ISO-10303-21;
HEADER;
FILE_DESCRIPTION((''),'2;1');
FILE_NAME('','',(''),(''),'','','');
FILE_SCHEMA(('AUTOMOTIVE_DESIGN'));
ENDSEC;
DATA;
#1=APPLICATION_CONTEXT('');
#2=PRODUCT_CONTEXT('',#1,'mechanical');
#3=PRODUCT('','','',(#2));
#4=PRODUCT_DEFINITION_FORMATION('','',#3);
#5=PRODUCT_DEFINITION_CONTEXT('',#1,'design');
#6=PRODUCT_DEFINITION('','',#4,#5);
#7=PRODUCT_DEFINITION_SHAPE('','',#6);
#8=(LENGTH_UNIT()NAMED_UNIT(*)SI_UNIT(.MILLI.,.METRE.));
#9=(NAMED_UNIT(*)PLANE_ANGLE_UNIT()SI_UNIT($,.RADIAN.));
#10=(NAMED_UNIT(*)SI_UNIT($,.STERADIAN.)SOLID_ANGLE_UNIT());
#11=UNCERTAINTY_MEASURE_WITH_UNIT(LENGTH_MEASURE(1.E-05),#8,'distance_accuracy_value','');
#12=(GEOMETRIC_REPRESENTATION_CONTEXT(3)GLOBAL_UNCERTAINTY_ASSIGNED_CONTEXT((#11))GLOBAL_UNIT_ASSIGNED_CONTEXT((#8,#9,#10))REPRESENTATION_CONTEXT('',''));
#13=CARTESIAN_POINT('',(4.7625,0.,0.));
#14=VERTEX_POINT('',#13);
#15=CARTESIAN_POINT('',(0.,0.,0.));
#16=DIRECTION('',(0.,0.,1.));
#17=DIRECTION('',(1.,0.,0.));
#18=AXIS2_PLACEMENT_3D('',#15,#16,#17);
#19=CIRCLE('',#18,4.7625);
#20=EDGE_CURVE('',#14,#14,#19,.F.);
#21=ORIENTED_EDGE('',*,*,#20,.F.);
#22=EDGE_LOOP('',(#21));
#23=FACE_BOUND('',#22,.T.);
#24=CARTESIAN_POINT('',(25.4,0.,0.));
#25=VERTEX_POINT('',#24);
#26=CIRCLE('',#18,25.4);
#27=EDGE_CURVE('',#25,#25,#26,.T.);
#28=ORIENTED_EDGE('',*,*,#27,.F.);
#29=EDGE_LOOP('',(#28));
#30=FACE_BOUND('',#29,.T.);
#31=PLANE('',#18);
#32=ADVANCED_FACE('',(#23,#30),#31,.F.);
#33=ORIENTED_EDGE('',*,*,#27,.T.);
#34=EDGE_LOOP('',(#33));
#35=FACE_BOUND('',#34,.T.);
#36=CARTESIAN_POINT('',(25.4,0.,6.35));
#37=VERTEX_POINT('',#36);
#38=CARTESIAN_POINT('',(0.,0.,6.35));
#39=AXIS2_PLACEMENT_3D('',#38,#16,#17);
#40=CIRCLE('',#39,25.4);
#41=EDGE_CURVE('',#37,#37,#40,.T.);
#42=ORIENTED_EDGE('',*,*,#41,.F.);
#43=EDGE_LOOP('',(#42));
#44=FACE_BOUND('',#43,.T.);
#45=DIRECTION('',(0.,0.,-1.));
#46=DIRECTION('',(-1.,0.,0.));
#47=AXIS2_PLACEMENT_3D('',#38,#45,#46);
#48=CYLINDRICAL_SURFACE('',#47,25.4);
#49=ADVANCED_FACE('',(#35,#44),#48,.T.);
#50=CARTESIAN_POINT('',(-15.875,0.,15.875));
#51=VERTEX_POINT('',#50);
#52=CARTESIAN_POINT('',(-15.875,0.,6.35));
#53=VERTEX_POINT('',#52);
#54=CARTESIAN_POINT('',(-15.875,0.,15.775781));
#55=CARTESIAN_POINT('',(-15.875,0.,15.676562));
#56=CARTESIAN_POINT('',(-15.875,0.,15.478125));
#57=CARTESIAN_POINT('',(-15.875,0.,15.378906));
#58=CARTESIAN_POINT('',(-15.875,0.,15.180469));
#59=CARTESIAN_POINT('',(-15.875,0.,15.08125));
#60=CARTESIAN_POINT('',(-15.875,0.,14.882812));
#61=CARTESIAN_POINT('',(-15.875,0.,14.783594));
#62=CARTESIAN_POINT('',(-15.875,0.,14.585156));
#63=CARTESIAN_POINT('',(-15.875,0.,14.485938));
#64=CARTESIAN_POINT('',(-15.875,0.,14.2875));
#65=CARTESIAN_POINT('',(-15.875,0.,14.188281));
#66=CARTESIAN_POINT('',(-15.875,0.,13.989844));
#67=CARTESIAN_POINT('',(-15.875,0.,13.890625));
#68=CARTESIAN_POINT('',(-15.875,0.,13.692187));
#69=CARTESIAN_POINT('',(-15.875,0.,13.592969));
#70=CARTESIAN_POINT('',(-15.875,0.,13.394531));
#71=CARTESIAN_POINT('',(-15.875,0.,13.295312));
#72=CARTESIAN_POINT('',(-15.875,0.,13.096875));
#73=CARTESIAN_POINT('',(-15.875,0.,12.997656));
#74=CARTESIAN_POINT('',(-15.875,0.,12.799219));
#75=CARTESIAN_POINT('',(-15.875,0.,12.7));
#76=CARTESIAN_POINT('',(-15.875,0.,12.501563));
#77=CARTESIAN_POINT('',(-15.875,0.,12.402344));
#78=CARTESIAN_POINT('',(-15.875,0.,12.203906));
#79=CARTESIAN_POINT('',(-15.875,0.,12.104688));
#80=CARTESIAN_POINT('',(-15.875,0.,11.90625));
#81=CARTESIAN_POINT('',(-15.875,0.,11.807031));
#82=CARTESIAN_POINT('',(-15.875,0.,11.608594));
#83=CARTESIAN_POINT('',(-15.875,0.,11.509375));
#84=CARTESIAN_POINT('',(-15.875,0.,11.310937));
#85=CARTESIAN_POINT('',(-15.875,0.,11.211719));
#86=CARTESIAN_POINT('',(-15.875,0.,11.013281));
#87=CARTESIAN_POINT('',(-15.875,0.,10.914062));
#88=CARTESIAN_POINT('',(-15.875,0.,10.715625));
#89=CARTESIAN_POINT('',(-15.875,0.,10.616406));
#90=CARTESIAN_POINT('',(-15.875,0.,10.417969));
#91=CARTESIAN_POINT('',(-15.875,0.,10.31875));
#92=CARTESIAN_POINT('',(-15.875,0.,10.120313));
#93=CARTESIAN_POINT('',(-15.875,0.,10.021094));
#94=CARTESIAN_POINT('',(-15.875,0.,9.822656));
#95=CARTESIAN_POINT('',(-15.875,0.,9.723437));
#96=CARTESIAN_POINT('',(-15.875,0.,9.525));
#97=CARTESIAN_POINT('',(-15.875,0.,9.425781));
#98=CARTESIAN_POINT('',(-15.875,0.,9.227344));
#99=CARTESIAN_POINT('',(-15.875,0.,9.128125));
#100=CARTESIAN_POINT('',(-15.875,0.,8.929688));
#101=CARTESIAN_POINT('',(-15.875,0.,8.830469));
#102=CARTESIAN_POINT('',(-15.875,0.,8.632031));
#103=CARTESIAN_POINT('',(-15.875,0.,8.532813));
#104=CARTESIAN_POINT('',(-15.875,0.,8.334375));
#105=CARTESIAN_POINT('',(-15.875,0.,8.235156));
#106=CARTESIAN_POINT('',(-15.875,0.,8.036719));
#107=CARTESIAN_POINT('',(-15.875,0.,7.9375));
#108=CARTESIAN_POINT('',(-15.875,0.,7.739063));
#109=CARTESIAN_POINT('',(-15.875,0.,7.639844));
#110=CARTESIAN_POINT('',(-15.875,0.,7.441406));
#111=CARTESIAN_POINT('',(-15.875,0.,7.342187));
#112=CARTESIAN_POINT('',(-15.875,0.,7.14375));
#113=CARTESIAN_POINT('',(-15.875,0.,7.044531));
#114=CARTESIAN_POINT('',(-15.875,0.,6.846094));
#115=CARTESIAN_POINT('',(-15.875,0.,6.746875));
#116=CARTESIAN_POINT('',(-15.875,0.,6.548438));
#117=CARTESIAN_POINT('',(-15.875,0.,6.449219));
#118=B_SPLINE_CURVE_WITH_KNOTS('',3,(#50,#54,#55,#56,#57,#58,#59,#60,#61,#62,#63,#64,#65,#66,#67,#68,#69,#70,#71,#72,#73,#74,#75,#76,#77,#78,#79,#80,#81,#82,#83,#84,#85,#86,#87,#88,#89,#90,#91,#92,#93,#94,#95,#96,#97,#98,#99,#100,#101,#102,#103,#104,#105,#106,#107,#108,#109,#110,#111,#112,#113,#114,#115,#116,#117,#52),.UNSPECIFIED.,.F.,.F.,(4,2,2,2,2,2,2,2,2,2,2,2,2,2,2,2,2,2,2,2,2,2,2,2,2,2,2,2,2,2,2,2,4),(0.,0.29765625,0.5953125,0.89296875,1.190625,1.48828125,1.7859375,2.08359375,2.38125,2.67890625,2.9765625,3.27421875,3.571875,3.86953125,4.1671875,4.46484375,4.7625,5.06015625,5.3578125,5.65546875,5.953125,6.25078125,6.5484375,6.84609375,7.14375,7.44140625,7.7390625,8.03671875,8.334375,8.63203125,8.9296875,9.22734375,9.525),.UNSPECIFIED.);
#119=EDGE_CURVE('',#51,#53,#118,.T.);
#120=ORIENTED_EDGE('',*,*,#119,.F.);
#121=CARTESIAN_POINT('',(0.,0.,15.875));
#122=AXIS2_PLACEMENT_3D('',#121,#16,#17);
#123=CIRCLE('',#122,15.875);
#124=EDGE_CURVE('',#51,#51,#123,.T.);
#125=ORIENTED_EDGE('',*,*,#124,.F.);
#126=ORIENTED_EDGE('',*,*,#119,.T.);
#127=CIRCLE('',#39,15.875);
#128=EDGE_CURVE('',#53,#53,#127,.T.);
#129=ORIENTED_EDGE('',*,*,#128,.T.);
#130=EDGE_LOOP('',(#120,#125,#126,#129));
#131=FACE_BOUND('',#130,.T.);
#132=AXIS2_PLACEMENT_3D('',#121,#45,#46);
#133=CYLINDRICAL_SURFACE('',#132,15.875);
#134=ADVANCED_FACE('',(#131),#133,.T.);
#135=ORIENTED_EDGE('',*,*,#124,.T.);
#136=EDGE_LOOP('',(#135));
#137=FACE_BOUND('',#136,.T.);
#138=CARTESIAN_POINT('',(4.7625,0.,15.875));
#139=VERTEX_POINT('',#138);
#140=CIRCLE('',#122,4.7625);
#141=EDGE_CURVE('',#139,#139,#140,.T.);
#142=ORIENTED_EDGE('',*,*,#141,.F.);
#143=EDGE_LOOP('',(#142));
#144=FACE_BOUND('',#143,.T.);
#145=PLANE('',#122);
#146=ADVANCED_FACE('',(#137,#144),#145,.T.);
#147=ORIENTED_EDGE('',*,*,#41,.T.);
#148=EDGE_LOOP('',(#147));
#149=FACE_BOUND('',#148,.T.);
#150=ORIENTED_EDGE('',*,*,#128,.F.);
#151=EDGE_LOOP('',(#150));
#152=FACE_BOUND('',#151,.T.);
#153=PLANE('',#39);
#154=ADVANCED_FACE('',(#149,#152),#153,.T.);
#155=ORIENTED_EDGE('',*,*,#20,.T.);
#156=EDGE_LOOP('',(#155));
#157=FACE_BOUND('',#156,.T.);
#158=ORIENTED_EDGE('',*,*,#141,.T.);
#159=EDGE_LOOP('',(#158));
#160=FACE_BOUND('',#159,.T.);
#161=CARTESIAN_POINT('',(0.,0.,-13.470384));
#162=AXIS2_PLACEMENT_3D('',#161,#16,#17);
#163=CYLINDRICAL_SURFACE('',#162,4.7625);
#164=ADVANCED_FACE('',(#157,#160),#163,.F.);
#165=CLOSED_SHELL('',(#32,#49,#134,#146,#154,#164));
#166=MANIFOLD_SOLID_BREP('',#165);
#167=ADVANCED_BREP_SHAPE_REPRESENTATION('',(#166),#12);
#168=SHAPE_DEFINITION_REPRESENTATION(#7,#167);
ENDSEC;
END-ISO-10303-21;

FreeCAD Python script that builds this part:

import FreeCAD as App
import Part
import Sketcher

V = App.Vector
Q = App.Units.Quantity

doc = App.newDocument("Part")
body = doc.addObject("PartDesign::Body", "Body")

# Sketch on XY plane
sketch1 = body.newObject("Sketcher::SketchObject", "Sketch")
sketch1.AttachmentSupport = (doc.getObject("XY_Plane"), [""])
sketch1.MapMode = "FlatFace"
sketch1.addGeometry(Part.Circle(V(0, 0, 0), V(0, 0, 1), 25), False)
sketch1.addConstraint([
    Sketcher.Constraint("Coincident", 0, 3, -1, 1),
    Sketcher.Constraint("Diameter", 0, Q("2 in")),
])
pad1 = body.newObject("PartDesign::Pad", "Pad")
pad1.Profile = sketch1
pad1.Length = Q("0.25 in")

# Sketch on XY plane
sketch2 = body.newObject("Sketcher::SketchObject", "Sketch001")
sketch2.AttachmentSupport = (doc.getObject("XY_Plane"), [""])
sketch2.MapMode = "FlatFace"
sketch2.AttachmentOffset = App.Placement(V(0, 0, 0.25 * 25.4), App.Rotation())
sketch2.addGeometry(Part.Circle(V(0, 0, 0), V(0, 0, 1), 16), False)
sketch2.addConstraint([
    Sketcher.Constraint("Coincident", 0, 3, -1, 1),
    Sketcher.Constraint("Diameter", 0, Q("1.25 in")),
])
pad2 = body.newObject("PartDesign::Pad", "Pad001")
pad2.Profile = sketch2
pad2.Length = Q("0.375 in")

# Sketch on XY plane
sketch3 = body.newObject("Sketcher::SketchObject", "Sketch002")
sketch3.AttachmentSupport = (doc.getObject("XY_Plane"), [""])
sketch3.MapMode = "FlatFace"
sketch3.AttachmentOffset = App.Placement(V(0, 0, 0.625 * 25.4), App.Rotation())
sketch3.addGeometry(Part.Circle(V(0, 0, 0), V(0, 0, 1), 4.8), False)
sketch3.addConstraint([
    Sketcher.Constraint("Coincident", 0, 3, -1, 1),
    Sketcher.Constraint("Diameter", 0, Q("0.375 in")),
])
pocket1 = body.newObject("PartDesign::Pocket", "Pocket")
pocket1.Profile = sketch3
pocket1.Length = Q("0.625 in")

doc.recompute()
